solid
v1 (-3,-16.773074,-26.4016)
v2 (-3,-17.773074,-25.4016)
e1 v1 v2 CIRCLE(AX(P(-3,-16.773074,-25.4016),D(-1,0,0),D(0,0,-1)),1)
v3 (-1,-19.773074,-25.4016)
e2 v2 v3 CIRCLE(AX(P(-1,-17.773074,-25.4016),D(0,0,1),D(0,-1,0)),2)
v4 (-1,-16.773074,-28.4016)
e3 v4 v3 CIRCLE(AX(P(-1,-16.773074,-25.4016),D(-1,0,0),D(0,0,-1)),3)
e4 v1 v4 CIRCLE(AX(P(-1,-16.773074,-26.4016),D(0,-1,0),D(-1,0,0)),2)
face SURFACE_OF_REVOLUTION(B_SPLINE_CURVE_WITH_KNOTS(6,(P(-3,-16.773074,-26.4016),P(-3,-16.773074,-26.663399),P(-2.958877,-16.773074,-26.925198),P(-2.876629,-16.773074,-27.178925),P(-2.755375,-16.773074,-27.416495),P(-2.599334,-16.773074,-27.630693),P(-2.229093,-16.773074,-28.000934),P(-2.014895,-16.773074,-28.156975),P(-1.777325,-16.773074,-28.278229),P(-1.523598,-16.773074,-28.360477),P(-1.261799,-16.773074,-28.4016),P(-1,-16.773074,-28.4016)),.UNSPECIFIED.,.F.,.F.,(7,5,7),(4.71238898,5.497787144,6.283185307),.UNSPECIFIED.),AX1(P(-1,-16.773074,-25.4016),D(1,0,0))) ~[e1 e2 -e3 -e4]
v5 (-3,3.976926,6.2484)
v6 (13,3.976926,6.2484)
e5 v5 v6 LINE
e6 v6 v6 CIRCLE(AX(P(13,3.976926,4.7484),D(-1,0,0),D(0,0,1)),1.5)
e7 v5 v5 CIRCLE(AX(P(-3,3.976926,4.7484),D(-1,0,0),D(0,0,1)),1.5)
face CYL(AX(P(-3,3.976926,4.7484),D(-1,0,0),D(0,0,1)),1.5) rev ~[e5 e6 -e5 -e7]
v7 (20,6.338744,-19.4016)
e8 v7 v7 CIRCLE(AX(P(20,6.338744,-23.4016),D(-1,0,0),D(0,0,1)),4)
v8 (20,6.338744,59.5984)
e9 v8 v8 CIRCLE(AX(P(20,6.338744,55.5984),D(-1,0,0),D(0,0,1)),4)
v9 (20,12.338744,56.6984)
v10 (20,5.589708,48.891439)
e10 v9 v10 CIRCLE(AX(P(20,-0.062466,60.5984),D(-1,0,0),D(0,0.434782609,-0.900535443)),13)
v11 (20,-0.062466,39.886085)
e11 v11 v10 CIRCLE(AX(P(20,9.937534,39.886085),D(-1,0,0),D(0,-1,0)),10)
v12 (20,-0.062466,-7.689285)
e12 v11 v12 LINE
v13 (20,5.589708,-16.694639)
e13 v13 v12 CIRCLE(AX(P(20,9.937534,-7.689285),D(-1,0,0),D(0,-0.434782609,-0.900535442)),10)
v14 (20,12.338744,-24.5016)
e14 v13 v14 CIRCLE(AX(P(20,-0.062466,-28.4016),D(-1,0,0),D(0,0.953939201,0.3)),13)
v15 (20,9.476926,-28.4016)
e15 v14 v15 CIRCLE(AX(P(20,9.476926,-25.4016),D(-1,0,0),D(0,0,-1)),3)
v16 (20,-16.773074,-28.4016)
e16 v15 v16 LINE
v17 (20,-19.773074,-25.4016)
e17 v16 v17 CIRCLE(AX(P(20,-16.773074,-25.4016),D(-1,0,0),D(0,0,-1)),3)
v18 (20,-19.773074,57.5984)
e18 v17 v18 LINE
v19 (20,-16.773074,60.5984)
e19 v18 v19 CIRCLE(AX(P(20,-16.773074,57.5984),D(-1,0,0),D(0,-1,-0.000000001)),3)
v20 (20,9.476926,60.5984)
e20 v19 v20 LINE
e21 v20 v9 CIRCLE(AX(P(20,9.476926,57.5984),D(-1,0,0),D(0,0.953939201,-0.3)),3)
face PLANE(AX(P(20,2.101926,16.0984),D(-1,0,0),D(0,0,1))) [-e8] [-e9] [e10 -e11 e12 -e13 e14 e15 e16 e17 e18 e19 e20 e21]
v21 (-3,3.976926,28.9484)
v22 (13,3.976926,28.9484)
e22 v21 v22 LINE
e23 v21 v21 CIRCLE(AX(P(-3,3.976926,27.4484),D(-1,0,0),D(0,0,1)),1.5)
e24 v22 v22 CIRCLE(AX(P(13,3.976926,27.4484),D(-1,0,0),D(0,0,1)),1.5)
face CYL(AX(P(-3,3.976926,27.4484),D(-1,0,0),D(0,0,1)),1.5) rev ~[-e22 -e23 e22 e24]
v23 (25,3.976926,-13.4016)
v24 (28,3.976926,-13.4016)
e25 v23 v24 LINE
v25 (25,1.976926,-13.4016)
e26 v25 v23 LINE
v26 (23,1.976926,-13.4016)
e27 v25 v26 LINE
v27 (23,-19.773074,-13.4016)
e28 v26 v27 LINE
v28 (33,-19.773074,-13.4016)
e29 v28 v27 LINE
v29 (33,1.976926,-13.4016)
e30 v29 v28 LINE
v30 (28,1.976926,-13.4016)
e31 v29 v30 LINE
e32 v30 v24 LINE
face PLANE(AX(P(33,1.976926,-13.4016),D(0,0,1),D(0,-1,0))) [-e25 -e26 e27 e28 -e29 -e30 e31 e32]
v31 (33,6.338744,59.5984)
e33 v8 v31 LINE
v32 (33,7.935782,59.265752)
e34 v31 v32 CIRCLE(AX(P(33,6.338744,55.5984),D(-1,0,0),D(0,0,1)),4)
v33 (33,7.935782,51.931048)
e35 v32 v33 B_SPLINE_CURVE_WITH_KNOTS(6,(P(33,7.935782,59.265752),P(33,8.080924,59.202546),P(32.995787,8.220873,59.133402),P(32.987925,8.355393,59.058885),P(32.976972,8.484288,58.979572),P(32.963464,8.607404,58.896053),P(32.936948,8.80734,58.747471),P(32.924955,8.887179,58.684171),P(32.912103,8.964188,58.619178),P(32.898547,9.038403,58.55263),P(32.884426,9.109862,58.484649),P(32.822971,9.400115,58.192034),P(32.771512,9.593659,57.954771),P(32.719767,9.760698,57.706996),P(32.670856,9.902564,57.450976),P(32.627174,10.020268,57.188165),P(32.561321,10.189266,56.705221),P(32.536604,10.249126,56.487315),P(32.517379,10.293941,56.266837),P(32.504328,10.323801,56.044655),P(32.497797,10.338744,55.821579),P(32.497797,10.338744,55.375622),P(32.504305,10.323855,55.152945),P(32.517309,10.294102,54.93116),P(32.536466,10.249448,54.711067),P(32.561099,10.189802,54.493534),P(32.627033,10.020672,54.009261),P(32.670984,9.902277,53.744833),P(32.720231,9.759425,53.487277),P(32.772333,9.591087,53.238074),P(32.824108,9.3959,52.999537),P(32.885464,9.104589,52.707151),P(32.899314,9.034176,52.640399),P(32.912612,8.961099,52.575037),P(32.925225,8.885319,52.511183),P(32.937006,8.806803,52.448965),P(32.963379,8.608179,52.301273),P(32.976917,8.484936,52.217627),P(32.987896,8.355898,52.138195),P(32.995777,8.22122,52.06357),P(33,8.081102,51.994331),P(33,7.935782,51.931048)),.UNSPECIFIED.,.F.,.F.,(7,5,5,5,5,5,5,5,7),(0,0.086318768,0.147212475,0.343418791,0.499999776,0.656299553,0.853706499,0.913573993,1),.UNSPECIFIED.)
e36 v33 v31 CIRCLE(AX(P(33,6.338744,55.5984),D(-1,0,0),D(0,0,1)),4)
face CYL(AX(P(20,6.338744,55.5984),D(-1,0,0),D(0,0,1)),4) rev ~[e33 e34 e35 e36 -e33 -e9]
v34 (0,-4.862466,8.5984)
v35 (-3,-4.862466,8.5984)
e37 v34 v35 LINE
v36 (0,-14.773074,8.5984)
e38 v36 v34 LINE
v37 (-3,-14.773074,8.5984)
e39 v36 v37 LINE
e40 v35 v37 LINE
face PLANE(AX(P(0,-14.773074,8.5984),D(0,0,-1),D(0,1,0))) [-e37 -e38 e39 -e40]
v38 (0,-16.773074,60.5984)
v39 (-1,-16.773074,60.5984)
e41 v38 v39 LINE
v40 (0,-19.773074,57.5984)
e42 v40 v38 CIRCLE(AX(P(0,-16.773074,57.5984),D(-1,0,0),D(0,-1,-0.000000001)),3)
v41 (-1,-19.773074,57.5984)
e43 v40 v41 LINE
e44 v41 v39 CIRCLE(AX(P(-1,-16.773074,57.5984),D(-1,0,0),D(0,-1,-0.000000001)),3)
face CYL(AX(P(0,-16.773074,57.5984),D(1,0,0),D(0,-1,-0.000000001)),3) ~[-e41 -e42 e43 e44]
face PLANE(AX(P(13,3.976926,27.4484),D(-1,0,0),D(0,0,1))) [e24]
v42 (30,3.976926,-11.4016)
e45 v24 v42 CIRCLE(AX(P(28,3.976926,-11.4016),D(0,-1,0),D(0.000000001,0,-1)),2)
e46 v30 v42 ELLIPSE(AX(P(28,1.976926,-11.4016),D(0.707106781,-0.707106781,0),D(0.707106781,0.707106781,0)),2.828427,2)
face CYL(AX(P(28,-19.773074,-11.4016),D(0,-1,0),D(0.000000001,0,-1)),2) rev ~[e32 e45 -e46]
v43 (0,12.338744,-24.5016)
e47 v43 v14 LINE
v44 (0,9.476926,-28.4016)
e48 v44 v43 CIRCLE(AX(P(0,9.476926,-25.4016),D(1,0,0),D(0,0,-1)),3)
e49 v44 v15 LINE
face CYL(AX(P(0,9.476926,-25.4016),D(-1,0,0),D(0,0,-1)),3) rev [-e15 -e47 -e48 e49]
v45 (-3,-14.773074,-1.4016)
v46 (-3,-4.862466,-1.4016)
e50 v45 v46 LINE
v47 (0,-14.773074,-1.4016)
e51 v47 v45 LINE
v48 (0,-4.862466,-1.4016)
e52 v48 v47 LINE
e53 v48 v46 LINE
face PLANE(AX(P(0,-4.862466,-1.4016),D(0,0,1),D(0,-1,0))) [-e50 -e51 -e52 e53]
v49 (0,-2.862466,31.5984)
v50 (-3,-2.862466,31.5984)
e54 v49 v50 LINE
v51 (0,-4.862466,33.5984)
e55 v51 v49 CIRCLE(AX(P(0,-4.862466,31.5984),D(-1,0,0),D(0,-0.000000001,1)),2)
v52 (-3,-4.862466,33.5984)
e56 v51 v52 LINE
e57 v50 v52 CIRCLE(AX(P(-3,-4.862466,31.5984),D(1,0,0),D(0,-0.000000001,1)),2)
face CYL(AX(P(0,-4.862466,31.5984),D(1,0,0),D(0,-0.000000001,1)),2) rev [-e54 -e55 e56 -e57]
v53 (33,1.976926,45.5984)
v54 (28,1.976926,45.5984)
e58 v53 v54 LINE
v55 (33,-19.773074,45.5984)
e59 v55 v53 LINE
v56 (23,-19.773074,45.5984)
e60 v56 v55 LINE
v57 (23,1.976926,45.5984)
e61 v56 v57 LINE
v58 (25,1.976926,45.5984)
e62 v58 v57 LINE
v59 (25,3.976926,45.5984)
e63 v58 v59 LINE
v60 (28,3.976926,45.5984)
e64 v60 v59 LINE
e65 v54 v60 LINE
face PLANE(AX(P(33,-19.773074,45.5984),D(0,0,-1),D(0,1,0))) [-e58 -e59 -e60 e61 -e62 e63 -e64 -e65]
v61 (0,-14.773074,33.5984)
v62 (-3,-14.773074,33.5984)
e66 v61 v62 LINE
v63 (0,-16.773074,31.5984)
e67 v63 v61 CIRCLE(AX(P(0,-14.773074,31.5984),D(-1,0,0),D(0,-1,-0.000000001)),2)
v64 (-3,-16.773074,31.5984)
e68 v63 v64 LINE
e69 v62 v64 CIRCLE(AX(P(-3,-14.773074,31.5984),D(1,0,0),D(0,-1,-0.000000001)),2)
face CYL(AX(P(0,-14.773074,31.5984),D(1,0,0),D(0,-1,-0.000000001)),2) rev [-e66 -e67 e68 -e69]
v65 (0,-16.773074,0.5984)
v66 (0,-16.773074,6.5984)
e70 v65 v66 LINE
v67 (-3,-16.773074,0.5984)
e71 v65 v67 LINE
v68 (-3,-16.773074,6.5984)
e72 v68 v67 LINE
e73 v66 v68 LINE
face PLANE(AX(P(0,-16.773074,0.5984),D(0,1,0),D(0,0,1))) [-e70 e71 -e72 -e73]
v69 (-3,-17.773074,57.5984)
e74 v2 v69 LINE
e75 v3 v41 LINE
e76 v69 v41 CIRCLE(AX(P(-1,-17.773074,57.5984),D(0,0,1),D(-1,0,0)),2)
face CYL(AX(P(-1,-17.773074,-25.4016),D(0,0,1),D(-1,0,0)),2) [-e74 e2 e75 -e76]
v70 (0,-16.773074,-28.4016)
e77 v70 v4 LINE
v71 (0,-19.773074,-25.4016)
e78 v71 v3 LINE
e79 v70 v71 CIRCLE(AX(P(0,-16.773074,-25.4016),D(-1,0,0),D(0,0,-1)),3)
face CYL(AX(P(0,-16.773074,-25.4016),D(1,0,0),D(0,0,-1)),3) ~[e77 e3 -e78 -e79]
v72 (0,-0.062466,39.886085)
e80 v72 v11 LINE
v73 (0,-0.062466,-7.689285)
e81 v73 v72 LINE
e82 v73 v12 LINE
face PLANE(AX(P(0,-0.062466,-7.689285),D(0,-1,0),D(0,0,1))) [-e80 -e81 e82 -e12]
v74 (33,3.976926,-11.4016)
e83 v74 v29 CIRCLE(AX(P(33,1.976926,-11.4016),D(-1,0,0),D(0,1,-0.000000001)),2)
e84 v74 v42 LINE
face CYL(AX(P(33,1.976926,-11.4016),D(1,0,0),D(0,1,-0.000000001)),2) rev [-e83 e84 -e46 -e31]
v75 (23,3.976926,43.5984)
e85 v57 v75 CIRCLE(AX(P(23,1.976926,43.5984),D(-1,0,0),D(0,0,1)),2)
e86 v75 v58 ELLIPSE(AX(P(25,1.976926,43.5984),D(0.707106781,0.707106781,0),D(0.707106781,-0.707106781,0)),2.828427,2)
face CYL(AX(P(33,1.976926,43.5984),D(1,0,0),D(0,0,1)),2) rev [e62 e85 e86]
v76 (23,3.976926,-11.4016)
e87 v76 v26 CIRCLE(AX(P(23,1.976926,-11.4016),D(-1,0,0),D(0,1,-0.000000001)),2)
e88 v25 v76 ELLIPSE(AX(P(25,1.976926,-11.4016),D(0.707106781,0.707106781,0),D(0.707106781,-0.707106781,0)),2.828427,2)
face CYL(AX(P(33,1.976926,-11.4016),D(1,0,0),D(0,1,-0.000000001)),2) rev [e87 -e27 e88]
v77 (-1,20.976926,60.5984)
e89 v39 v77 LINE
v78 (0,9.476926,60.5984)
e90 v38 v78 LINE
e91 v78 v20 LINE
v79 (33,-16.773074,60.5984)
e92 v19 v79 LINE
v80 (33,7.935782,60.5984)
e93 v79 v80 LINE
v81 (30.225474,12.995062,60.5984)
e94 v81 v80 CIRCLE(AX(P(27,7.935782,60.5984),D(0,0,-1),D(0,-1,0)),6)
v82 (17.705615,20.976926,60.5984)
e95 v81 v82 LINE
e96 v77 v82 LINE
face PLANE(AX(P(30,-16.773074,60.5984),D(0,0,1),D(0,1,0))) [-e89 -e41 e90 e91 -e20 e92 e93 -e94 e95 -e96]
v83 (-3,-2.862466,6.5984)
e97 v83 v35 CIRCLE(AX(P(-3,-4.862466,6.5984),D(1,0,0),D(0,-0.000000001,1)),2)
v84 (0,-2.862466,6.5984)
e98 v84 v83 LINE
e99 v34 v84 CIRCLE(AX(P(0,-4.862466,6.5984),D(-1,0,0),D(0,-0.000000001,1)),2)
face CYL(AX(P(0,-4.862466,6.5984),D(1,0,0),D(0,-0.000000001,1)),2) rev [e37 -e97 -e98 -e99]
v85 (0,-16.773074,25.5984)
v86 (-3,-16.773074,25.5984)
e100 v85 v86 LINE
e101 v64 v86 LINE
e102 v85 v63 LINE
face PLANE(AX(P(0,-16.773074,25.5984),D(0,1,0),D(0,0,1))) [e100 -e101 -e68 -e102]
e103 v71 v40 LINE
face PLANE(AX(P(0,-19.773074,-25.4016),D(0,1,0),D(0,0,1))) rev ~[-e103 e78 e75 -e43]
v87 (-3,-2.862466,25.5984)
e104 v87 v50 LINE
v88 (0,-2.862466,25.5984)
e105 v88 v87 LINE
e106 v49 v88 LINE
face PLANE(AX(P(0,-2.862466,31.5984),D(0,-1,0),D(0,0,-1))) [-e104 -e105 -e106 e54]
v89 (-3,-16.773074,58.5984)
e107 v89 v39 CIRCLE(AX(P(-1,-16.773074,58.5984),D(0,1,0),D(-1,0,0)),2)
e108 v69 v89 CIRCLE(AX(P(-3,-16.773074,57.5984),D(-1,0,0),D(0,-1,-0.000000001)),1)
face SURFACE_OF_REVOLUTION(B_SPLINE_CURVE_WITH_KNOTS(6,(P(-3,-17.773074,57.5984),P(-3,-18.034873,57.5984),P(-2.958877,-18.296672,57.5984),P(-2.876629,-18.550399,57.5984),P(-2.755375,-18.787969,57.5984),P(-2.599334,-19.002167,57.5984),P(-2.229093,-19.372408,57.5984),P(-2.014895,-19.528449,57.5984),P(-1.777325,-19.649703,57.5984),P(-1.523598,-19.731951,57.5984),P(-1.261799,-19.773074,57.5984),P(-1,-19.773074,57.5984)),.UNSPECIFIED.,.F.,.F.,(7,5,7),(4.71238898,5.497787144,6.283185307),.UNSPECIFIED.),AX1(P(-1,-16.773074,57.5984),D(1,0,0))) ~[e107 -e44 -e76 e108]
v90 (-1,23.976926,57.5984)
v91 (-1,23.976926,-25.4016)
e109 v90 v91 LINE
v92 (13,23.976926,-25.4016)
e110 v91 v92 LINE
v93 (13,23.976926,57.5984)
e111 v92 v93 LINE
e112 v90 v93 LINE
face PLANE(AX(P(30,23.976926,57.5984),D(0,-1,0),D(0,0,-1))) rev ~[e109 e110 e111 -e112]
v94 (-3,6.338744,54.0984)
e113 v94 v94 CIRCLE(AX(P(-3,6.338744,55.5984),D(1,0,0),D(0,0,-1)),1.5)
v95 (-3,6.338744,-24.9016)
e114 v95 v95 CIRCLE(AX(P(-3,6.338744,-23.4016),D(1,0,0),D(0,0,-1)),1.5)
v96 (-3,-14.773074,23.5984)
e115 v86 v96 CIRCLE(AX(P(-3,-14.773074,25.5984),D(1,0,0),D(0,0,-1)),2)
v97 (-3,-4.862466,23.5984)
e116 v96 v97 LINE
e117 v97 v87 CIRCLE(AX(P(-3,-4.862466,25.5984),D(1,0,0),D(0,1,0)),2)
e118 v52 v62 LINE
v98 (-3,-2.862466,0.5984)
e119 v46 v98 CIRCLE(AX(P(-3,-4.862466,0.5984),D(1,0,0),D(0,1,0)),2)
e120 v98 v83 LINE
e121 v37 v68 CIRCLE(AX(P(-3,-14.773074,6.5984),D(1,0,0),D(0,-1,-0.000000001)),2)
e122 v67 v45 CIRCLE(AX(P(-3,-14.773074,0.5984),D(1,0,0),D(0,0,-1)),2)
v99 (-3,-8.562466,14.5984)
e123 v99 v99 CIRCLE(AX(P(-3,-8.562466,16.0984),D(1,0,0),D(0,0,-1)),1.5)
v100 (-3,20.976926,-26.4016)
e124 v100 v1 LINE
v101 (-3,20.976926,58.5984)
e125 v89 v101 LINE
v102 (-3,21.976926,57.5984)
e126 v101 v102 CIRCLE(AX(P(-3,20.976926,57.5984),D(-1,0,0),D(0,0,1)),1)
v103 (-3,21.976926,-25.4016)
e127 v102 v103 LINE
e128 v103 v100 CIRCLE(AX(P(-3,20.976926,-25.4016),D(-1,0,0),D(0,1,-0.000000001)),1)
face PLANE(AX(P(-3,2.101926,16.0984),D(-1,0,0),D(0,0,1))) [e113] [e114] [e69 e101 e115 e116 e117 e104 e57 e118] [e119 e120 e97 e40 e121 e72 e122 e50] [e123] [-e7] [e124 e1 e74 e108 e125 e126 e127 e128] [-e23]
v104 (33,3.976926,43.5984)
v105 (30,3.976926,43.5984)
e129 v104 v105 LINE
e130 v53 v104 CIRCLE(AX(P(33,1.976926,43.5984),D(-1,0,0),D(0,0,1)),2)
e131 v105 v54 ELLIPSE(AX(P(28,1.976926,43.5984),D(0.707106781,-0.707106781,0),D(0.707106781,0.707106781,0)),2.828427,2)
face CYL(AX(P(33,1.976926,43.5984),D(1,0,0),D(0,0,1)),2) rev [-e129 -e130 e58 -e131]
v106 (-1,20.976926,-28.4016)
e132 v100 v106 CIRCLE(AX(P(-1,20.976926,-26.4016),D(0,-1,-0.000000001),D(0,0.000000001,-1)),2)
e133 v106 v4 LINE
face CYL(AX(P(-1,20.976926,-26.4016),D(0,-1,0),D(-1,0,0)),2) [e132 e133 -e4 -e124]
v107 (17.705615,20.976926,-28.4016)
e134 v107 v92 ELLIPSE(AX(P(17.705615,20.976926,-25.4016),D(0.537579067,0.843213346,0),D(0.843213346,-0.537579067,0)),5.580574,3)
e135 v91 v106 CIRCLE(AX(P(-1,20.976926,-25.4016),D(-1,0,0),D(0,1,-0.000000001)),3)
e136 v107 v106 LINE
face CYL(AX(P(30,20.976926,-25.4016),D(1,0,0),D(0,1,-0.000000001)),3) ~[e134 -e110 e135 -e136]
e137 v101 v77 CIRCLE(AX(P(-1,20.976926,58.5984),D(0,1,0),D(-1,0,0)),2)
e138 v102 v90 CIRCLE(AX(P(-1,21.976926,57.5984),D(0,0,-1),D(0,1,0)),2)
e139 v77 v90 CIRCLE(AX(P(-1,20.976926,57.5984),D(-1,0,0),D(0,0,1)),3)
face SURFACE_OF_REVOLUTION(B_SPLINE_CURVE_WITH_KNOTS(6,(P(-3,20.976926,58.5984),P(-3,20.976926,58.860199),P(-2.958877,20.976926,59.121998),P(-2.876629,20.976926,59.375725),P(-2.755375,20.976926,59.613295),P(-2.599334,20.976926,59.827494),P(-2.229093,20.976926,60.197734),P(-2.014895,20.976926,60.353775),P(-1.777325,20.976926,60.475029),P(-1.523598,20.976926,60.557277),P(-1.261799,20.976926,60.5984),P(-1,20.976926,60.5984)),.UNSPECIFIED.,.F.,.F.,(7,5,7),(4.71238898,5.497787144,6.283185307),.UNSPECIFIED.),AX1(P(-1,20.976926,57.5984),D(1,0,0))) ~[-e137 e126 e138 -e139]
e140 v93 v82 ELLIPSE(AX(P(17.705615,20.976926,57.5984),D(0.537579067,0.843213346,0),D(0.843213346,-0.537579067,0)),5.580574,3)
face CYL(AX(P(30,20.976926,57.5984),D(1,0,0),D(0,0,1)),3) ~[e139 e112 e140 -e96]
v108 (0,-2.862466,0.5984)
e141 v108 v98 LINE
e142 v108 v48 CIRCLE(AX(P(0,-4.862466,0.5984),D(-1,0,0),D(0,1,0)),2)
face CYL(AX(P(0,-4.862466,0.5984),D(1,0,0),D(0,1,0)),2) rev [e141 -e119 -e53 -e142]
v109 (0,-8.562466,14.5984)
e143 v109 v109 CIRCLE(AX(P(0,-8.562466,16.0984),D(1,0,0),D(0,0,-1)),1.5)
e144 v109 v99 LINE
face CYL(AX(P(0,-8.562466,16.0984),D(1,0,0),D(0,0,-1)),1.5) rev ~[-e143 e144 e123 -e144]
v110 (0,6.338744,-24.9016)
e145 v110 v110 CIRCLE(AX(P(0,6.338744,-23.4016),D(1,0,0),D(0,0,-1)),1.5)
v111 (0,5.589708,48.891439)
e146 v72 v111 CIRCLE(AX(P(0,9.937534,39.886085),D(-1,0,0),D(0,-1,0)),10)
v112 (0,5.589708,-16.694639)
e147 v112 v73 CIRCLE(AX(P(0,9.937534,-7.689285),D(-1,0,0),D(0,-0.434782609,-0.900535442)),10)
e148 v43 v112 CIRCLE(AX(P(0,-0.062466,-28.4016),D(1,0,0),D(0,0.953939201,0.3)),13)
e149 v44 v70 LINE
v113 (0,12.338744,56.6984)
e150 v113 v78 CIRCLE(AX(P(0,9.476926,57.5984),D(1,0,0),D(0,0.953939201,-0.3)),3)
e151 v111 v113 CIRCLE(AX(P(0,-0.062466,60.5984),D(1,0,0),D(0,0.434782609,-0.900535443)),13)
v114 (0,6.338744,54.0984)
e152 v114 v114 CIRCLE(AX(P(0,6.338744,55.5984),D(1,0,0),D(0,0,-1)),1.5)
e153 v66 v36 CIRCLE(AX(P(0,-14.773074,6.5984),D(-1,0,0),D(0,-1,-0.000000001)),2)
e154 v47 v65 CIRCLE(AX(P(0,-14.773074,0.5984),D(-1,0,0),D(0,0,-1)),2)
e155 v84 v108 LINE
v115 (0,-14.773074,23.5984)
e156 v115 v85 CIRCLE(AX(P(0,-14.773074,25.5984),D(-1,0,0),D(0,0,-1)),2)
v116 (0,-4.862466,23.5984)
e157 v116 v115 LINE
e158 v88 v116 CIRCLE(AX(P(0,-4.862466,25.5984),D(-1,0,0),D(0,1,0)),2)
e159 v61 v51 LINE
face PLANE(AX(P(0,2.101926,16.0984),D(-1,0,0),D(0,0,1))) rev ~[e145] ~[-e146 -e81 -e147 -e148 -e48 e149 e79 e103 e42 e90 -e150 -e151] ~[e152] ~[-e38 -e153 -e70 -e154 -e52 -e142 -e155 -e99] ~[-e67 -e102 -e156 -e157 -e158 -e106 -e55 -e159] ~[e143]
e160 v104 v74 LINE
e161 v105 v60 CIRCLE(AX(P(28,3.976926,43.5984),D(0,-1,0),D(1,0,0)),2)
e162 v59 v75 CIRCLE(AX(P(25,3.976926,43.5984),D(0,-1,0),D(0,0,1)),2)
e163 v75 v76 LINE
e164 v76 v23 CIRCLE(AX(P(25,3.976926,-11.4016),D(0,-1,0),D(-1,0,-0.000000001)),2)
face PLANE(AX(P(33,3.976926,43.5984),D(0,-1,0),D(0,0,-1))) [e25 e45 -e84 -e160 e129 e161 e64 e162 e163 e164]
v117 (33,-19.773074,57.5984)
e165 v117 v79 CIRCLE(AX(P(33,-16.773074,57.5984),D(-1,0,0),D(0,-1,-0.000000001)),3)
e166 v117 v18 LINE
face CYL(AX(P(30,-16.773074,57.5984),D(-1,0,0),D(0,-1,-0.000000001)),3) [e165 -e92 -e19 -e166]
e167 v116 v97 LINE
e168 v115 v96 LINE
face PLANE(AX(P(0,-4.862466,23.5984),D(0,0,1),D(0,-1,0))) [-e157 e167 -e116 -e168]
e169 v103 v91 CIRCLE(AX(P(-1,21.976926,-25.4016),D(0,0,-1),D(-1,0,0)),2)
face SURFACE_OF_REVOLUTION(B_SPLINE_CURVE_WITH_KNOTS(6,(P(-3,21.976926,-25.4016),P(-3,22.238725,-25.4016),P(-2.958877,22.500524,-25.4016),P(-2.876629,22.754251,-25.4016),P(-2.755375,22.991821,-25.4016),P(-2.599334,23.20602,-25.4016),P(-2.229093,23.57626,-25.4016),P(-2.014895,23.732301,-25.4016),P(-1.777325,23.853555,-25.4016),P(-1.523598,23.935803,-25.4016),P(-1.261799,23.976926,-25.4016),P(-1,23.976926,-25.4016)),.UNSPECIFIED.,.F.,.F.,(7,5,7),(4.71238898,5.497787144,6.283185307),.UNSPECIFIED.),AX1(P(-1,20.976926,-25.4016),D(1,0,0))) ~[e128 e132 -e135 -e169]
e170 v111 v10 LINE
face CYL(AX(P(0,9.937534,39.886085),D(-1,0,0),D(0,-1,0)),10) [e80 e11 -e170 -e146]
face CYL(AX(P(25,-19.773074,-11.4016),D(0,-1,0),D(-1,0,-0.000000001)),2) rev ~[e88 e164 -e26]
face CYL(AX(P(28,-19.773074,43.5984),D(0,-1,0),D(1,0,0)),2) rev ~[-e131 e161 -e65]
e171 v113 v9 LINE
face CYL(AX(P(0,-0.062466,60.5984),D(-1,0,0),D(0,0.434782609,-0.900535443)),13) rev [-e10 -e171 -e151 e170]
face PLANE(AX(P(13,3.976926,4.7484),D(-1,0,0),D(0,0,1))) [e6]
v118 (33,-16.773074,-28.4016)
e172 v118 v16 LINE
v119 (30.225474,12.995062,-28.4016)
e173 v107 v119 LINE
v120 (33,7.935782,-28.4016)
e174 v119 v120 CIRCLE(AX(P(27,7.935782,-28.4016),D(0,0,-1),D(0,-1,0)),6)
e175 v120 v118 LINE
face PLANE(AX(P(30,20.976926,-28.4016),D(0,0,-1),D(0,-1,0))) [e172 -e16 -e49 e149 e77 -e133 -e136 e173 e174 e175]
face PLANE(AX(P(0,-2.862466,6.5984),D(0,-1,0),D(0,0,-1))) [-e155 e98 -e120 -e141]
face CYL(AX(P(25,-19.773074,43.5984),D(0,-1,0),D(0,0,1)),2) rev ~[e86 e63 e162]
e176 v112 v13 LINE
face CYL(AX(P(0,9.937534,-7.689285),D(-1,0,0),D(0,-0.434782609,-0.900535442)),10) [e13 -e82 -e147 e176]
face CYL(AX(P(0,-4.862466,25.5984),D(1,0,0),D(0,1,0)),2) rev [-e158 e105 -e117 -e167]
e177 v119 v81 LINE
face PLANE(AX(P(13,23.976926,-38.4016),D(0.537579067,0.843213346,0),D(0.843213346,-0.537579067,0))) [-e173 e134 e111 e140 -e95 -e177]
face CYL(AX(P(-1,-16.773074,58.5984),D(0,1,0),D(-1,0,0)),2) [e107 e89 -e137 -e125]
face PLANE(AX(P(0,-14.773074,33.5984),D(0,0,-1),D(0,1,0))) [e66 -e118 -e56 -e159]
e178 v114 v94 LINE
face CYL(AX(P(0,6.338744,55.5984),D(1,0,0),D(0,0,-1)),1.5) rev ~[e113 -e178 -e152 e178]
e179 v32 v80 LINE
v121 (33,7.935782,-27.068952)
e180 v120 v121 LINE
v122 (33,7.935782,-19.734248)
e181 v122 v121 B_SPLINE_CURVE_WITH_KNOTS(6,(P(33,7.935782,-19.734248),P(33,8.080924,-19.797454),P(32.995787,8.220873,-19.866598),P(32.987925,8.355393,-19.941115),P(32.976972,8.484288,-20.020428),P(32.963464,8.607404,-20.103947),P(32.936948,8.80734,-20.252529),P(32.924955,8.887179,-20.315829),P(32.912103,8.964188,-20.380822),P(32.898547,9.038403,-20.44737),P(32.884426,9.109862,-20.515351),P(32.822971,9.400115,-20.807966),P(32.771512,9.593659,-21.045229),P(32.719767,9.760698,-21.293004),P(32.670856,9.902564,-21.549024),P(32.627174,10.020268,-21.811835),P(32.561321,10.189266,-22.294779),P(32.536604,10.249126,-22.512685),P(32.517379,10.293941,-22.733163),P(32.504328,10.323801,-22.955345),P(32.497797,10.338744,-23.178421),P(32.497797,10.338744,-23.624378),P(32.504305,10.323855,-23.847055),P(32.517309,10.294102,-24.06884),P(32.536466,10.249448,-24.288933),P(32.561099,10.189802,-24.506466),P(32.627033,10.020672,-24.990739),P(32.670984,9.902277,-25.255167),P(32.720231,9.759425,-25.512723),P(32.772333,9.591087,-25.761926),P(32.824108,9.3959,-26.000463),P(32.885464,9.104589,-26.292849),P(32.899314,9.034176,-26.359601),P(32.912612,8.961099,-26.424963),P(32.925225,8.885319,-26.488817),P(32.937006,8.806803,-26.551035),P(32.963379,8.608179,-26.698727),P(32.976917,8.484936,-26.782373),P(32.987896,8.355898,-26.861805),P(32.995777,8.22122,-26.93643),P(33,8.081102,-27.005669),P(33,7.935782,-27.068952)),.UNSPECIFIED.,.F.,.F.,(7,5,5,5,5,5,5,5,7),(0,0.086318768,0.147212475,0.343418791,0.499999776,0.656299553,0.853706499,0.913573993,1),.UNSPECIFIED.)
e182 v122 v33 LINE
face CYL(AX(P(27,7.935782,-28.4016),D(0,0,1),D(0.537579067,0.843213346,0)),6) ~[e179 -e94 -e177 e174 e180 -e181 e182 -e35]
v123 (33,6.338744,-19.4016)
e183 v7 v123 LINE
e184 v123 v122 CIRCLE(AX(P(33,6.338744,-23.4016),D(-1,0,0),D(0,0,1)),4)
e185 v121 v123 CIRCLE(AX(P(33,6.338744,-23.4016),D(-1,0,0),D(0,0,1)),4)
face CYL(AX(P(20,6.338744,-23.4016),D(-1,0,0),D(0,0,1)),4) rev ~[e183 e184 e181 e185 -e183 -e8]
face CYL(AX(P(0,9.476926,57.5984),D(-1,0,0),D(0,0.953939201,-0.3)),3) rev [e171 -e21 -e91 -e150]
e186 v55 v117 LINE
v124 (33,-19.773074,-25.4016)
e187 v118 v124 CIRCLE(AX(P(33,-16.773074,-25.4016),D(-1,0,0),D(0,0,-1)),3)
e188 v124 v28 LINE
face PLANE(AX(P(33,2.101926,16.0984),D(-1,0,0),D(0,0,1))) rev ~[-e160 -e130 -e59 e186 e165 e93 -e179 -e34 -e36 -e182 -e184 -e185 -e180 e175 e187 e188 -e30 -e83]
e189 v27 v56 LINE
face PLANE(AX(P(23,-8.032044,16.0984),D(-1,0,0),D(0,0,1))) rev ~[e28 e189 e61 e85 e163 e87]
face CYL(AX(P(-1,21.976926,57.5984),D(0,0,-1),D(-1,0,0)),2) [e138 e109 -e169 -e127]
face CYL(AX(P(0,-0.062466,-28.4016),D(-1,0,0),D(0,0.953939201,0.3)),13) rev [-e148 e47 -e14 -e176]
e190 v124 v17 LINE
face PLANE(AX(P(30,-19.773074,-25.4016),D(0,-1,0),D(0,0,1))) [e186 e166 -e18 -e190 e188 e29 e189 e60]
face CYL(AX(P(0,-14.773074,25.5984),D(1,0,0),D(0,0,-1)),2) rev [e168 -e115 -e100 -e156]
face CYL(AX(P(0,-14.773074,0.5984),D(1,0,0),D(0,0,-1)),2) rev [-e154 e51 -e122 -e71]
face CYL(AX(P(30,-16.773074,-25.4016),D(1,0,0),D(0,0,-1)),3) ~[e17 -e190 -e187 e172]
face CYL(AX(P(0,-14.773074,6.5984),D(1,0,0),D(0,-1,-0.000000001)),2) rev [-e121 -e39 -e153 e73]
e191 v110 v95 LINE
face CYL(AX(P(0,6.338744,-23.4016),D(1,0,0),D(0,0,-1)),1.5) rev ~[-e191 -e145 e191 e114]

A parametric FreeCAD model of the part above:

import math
import FreeCAD as App
import Part
import Sketcher
Q = App.Units.Quantity


def edges_at(feature, points):
    """Names of the edges that pass closest to the given points."""
    edges = feature.Shape.Edges
    near = lambda p: min(range(len(edges)), key=lambda i: edges[i].distToShape(Part.Vertex(*p))[0])
    return sorted({f"Edge{near(p) + 1}" for p in points})

doc = App.newDocument("Part")
body = doc.addObject("PartDesign::Body", "Body")

sketch1 = doc.addObject("Sketcher::SketchObject", "Sketch")
body.addObject(sketch1)
sketch1.AttachmentSupport = (doc.YZ_Plane, [""])
sketch1.MapMode = "FlatFace"
sketch1.addGeometry([
    Part.ArcOfCircle(Part.Circle(App.Vector(9.9, 39.9, 0), App.Vector(0, 0, 1), 10), math.radians(116), math.radians(180)),
    Part.LineSegment(App.Vector(-0.1, 39.9, 0), App.Vector(-0.1, -7.7, 0)),
    Part.ArcOfCircle(Part.Circle(App.Vector(9.9, -7.7, 0), App.Vector(0, 0, 1), 10), math.radians(-180), math.radians(-116)),
    Part.ArcOfCircle(Part.Circle(App.Vector(-0.1, -28.4, 0), App.Vector(0, 0, 1), 13), math.radians(17), math.radians(64)),
    Part.ArcOfCircle(Part.Circle(App.Vector(9.5, -25.4, 0), App.Vector(0, 0, 1), 3), math.radians(-90), math.radians(17)),
    Part.LineSegment(App.Vector(9.5, -28.4, 0), App.Vector(21, -28.4, 0)),
    Part.ArcOfCircle(Part.Circle(App.Vector(21, -25.4, 0), App.Vector(0, 0, 1), 3), math.radians(-90), math.radians(0)),
    Part.LineSegment(App.Vector(24, -25.4, 0), App.Vector(24, 57.6, 0)),
    Part.ArcOfCircle(Part.Circle(App.Vector(21, 57.6, 0), App.Vector(0, 0, 1), 3), math.radians(0), math.radians(90)),
    Part.LineSegment(App.Vector(21, 60.6, 0), App.Vector(9.5, 60.6, 0)),
    Part.ArcOfCircle(Part.Circle(App.Vector(9.5, 57.6, 0), App.Vector(0, 0, 1), 3), math.radians(-17), math.radians(90)),
    Part.ArcOfCircle(Part.Circle(App.Vector(-0.1, 60.6, 0), App.Vector(0, 0, 1), 13), math.radians(-64), math.radians(-17)),
], False)
sketch1.addConstraint([
    Sketcher.Constraint("Tangent", 0, 2, 1, 1),
    Sketcher.Constraint("Tangent", 1, 2, 2, 1),
    Sketcher.Constraint("Tangent", 2, 2, 3, 2),
    Sketcher.Constraint("Tangent", 3, 1, 4, 2),
    Sketcher.Constraint("Tangent", 4, 1, 5, 1),
    Sketcher.Constraint("Tangent", 5, 2, 6, 1),
    Sketcher.Constraint("Tangent", 6, 2, 7, 1),
    Sketcher.Constraint("Tangent", 7, 2, 8, 1),
    Sketcher.Constraint("Tangent", 8, 2, 9, 1),
    Sketcher.Constraint("Tangent", 9, 2, 10, 2),
    Sketcher.Constraint("Tangent", 10, 1, 11, 2),
    Sketcher.Constraint("Tangent", 11, 1, 0, 1),
    Sketcher.Constraint("Vertical", 1),
    Sketcher.Constraint("Horizontal", 5),
    Sketcher.Constraint("Vertical", 7),
    Sketcher.Constraint("Horizontal", 9),
    Sketcher.Constraint("Equal", 0, 2),
    Sketcher.Constraint("Equal", 4, 6),
    Sketcher.Constraint("Equal", 6, 8),
    Sketcher.Constraint("Equal", 8, 10),
    Sketcher.Constraint("Equal", 3, 11),
    Sketcher.Constraint("Horizontal", 3, 3, 4, 1),
    Sketcher.Constraint("Horizontal", 11, 3, 8, 2),
    Sketcher.Constraint("Vertical", 4, 3, 10, 3),
    Sketcher.Constraint("Vertical", 11, 3, 0, 2),
    Sketcher.Constraint("Radius", 0, Q("10 mm")),
    Sketcher.Constraint("Radius", 3, Q("13 mm")),
    Sketcher.Constraint("Radius", 4, Q("3 mm")),
    Sketcher.Constraint("DistanceY", 7, 1, 7, 2, Q("83 mm")),
    Sketcher.Constraint("DistanceX", 5, 1, 5, 2, Q("11.5 mm")),
    Sketcher.Constraint("DistanceY", 3, 3, -1, 1, Q("28.4016 mm")),
    Sketcher.Constraint("DistanceX", -1, 1, 0, 3, Q("9.937534 mm")),
])
pad1 = doc.addObject("PartDesign::Pad", "Pad")
body.addObject(pad1)
pad1.Profile = sketch1
pad1.Length = 30

sketch2 = doc.addObject("Sketcher::SketchObject", "Sketch001")
body.addObject(sketch2)
sketch2.AttachmentSupport = (doc.YZ_Plane, [""])
sketch2.MapMode = "FlatFace"
sketch2.addGeometry([
    Part.ArcOfCircle(Part.Circle(App.Vector(21, 57.6, 0), App.Vector(0, 0, 1), 3), math.radians(0), math.radians(90)),
    Part.LineSegment(App.Vector(24, 57.6, 0), App.Vector(24, -25.4, 0)),
    Part.ArcOfCircle(Part.Circle(App.Vector(21, -25.4, 0), App.Vector(0, 0, 1), 3), math.radians(-90), math.radians(0)),
    Part.LineSegment(App.Vector(21, -28.4, 0), App.Vector(-16.8, -28.4, 0)),
    Part.ArcOfCircle(Part.Circle(App.Vector(-16.8, -25.4, 0), App.Vector(0, 0, 1), 3), math.radians(180), math.radians(270)),
    Part.LineSegment(App.Vector(-19.8, -25.4, 0), App.Vector(-19.8, 57.6, 0)),
    Part.ArcOfCircle(Part.Circle(App.Vector(-16.8, 57.6, 0), App.Vector(0, 0, 1), 3), math.radians(90), math.radians(180)),
    Part.LineSegment(App.Vector(-16.8, 60.6, 0), App.Vector(21, 60.6, 0)),
], False)
sketch2.addConstraint([
    Sketcher.Constraint("Tangent", 0, 1, 1, 1),
    Sketcher.Constraint("Tangent", 1, 2, 2, 2),
    Sketcher.Constraint("Tangent", 2, 1, 3, 1),
    Sketcher.Constraint("Tangent", 3, 2, 4, 2),
    Sketcher.Constraint("Tangent", 4, 1, 5, 1),
    Sketcher.Constraint("Tangent", 5, 2, 6, 2),
    Sketcher.Constraint("Tangent", 6, 1, 7, 1),
    Sketcher.Constraint("Tangent", 7, 2, 0, 2),
    Sketcher.Constraint("Vertical", 1),
    Sketcher.Constraint("Horizontal", 3),
    Sketcher.Constraint("Vertical", 5),
    Sketcher.Constraint("Horizontal", 7),
    Sketcher.Constraint("Equal", 0, 2),
    Sketcher.Constraint("Equal", 2, 4),
    Sketcher.Constraint("Equal", 4, 6),
    Sketcher.Constraint("Radius", 0, Q("3 mm")),
    Sketcher.Constraint("DistanceY", 1, 2, 1, 1, Q("83 mm")),
    Sketcher.Constraint("DistanceX", 3, 2, 3, 1, Q("37.75 mm")),
    Sketcher.Constraint("DistanceY", -1, 1, 0, 3, Q("57.5984 mm")),
    Sketcher.Constraint("DistanceX", -1, 1, 0, 3, Q("20.976926 mm")),
])
pad2 = doc.addObject("PartDesign::Pad", "Pad001")
body.addObject(pad2)
pad2.Profile = sketch2
pad2.Length = 3
pad2.Reversed = True

sketch3 = doc.addObject("Sketcher::SketchObject", "Sketch002")
body.addObject(sketch3)
sketch3.AttachmentSupport = (doc.YZ_Plane, [""])
sketch3.MapMode = "FlatFace"
sketch3.AttachmentOffset = App.Placement(App.Vector(0, 0, 30), App.Rotation())
sketch3.addGeometry([
    Part.ArcOfCircle(Part.Circle(App.Vector(21, -25.4, 0), App.Vector(0, 0, 1), 3), math.radians(-90), math.radians(0)),
    Part.LineSegment(App.Vector(24, -25.4, 0), App.Vector(24, 57.6, 0)),
    Part.ArcOfCircle(Part.Circle(App.Vector(21, 57.6, 0), App.Vector(0, 0, 1), 3), math.radians(0), math.radians(90)),
    Part.LineSegment(App.Vector(21, 60.6, 0), App.Vector(-16.8, 60.6, 0)),
    Part.ArcOfCircle(Part.Circle(App.Vector(-16.8, 57.6, 0), App.Vector(0, 0, 1), 3), math.radians(90), math.radians(180)),
    Part.LineSegment(App.Vector(-19.8, 57.6, 0), App.Vector(-19.8, -25.4, 0)),
    Part.ArcOfCircle(Part.Circle(App.Vector(-16.8, -25.4, 0), App.Vector(0, 0, 1), 3), math.radians(180), math.radians(270)),
    Part.LineSegment(App.Vector(-16.8, -28.4, 0), App.Vector(21, -28.4, 0)),
], False)
sketch3.addConstraint([
    Sketcher.Constraint("Tangent", 0, 2, 1, 1),
    Sketcher.Constraint("Tangent", 1, 2, 2, 1),
    Sketcher.Constraint("Tangent", 2, 2, 3, 1),
    Sketcher.Constraint("Tangent", 3, 2, 4, 1),
    Sketcher.Constraint("Tangent", 4, 2, 5, 1),
    Sketcher.Constraint("Tangent", 5, 2, 6, 1),
    Sketcher.Constraint("Tangent", 6, 2, 7, 1),
    Sketcher.Constraint("Tangent", 7, 2, 0, 1),
    Sketcher.Constraint("Vertical", 1),
    Sketcher.Constraint("Horizontal", 3),
    Sketcher.Constraint("Vertical", 5),
    Sketcher.Constraint("Horizontal", 7),
    Sketcher.Constraint("Equal", 0, 2),
    Sketcher.Constraint("Equal", 2, 4),
    Sketcher.Constraint("Equal", 4, 6),
    Sketcher.Constraint("Radius", 0, Q("3 mm")),
    Sketcher.Constraint("DistanceY", 1, 1, 1, 2, Q("83 mm")),
    Sketcher.Constraint("DistanceX", 3, 2, 3, 1, Q("37.75 mm")),
    Sketcher.Constraint("DistanceY", 0, 3, -1, 1, Q("25.4016 mm")),
    Sketcher.Constraint("DistanceX", -1, 1, 0, 3, Q("20.976926 mm")),
])
pad3 = doc.addObject("PartDesign::Pad", "Pad002")
body.addObject(pad3)
pad3.Profile = sketch3
pad3.Type = "TwoLengths"
pad3.Length = 3
pad3.Length2 = 10

sketch4 = doc.addObject("Sketcher::SketchObject", "Sketch003")
body.addObject(sketch4)
sketch4.AttachmentSupport = (doc.YZ_Plane, [""])
sketch4.MapMode = "FlatFace"
sketch4.AttachmentOffset = App.Placement(App.Vector(0, 0, 33), App.Rotation())
sketch4.addGeometry([
    Part.LineSegment(App.Vector(4, -11.4, 0), App.Vector(4, 43.6, 0)),
    Part.ArcOfCircle(Part.Circle(App.Vector(2, 43.6, 0), App.Vector(0, 0, 1), 2), math.radians(0), math.radians(90)),
    Part.LineSegment(App.Vector(2, 45.6, 0), App.Vector(-19.8, 45.6, 0)),
    Part.LineSegment(App.Vector(-19.8, 45.6, 0), App.Vector(-19.8, -13.4, 0)),
    Part.LineSegment(App.Vector(-19.8, -13.4, 0), App.Vector(2, -13.4, 0)),
    Part.ArcOfCircle(Part.Circle(App.Vector(2, -11.4, 0), App.Vector(0, 0, 1), 2), math.radians(-90), math.radians(0)),
], False)
sketch4.addConstraint([
    Sketcher.Constraint("Tangent", 0, 2, 1, 1),
    Sketcher.Constraint("Tangent", 1, 2, 2, 1),
    Sketcher.Constraint("Coincident", 2, 2, 3, 1),
    Sketcher.Constraint("Coincident", 3, 2, 4, 1),
    Sketcher.Constraint("Tangent", 4, 2, 5, 1),
    Sketcher.Constraint("Tangent", 5, 2, 0, 1),
    Sketcher.Constraint("Vertical", 0),
    Sketcher.Constraint("Horizontal", 2),
    Sketcher.Constraint("Vertical", 3),
    Sketcher.Constraint("Horizontal", 4),
    Sketcher.Constraint("Equal", 1, 5),
    Sketcher.Constraint("Radius", 1, Q("2 mm")),
    Sketcher.Constraint("DistanceY", 0, 1, 0, 2, Q("55 mm")),
    Sketcher.Constraint("DistanceX", 2, 2, 2, 1, Q("21.75 mm")),
    Sketcher.Constraint("DistanceY", -1, 1, 1, 3, Q("43.5984 mm")),
    Sketcher.Constraint("DistanceX", -1, 1, 1, 3, Q("1.976926 mm")),
])
pocket1 = doc.addObject("PartDesign::Pocket", "Pocket")
body.addObject(pocket1)
pocket1.Profile = sketch4
pocket1.Length = 10

sketch5 = doc.addObject("Sketcher::SketchObject", "Sketch004")
body.addObject(sketch5)
sketch5.AttachmentSupport = (doc.XZ_Plane, [""])
sketch5.MapMode = "FlatFace"
sketch5.AttachmentOffset = App.Placement(App.Vector(0, 0, 19.773074), App.Rotation())
sketch5.addGeometry([
    Part.LineSegment(App.Vector(25, -13.4, 0), App.Vector(28, -13.4, 0)),
    Part.ArcOfCircle(Part.Circle(App.Vector(28, -11.4, 0), App.Vector(0, 0, 1), 2), math.radians(-90), math.radians(0)),
    Part.LineSegment(App.Vector(30, -11.4, 0), App.Vector(30, 43.6, 0)),
    Part.ArcOfCircle(Part.Circle(App.Vector(28, 43.6, 0), App.Vector(0, 0, 1), 2), math.radians(0), math.radians(90)),
    Part.LineSegment(App.Vector(28, 45.6, 0), App.Vector(25, 45.6, 0)),
    Part.ArcOfCircle(Part.Circle(App.Vector(25, 43.6, 0), App.Vector(0, 0, 1), 2), math.radians(90), math.radians(180)),
    Part.LineSegment(App.Vector(23, 43.6, 0), App.Vector(23, -11.4, 0)),
    Part.ArcOfCircle(Part.Circle(App.Vector(25, -11.4, 0), App.Vector(0, 0, 1), 2), math.radians(-180), math.radians(-90)),
], False)
sketch5.addConstraint([
    Sketcher.Constraint("Tangent", 0, 2, 1, 1),
    Sketcher.Constraint("Tangent", 1, 2, 2, 1),
    Sketcher.Constraint("Tangent", 2, 2, 3, 1),
    Sketcher.Constraint("Tangent", 3, 2, 4, 1),
    Sketcher.Constraint("Tangent", 4, 2, 5, 1),
    Sketcher.Constraint("Tangent", 5, 2, 6, 1),
    Sketcher.Constraint("Tangent", 6, 2, 7, 1),
    Sketcher.Constraint("Tangent", 7, 2, 0, 1),
    Sketcher.Constraint("Horizontal", 0),
    Sketcher.Constraint("Vertical", 2),
    Sketcher.Constraint("Horizontal", 4),
    Sketcher.Constraint("Vertical", 6),
    Sketcher.Constraint("Equal", 1, 3),
    Sketcher.Constraint("Equal", 3, 5),
    Sketcher.Constraint("Equal", 5, 7),
    Sketcher.Constraint("Radius", 1, Q("2 mm")),
    Sketcher.Constraint("DistanceX", 0, 1, 0, 2, Q("3 mm")),
    Sketcher.Constraint("DistanceY", 2, 1, 2, 2, Q("55 mm")),
    Sketcher.Constraint("DistanceX", -1, 1, 1, 3, Q("28 mm")),
    Sketcher.Constraint("DistanceY", 1, 3, -1, 1, Q("11.4016 mm")),
])
pocket2 = doc.addObject("PartDesign::Pocket", "Pocket001")
body.addObject(pocket2)
pocket2.Profile = sketch5
pocket2.Length = 23.75

sketch6 = doc.addObject("Sketcher::SketchObject", "Sketch005")
body.addObject(sketch6)
sketch6.AttachmentSupport = (doc.YZ_Plane, [""])
sketch6.MapMode = "FlatFace"
sketch6.addGeometry([
    Part.Circle(App.Vector(6.3, 55.6, 0), App.Vector(0, 0, 1), 1.5),
    Part.Circle(App.Vector(6.3, -23.4, 0), App.Vector(0, 0, 1), 1.5),
    Part.Circle(App.Vector(-8.6, 16.1, 0), App.Vector(0, 0, 1), 1.5),
], False)
sketch6.addConstraint([
    Sketcher.Constraint("Equal", 0, 1),
    Sketcher.Constraint("Equal", 1, 2),
    Sketcher.Constraint("Vertical", 0, 3, 1, 3),
    Sketcher.Constraint("Diameter", 0, Q("3 mm")),
    Sketcher.Constraint("DistanceY", 1, 3, 0, 3, Q("79 mm")),
    Sketcher.Constraint("DistanceY", 2, 3, 0, 3, Q("39.5 mm")),
    Sketcher.Constraint("DistanceY", -1, 1, 0, 3, Q("55.5984 mm")),
    Sketcher.Constraint("DistanceX", 2, 3, 0, 3, Q("14.90121 mm")),
    Sketcher.Constraint("DistanceX", -1, 1, 0, 3, Q("6.338744 mm")),
])
pocket3 = doc.addObject("PartDesign::Pocket", "Pocket002")
body.addObject(pocket3)
pocket3.Profile = sketch6
pocket3.Length = 10

sketch7 = doc.addObject("Sketcher::SketchObject", "Sketch006")
body.addObject(sketch7)
sketch7.AttachmentSupport = (doc.YZ_Plane, [""])
sketch7.MapMode = "FlatFace"
sketch7.addGeometry([
    Part.LineSegment(App.Vector(-2.9, 25.6, 0), App.Vector(-2.9, 31.6, 0)),
    Part.ArcOfCircle(Part.Circle(App.Vector(-4.9, 31.6, 0), App.Vector(0, 0, 1), 2), math.radians(0), math.radians(90)),
    Part.LineSegment(App.Vector(-4.9, 33.6, 0), App.Vector(-14.8, 33.6, 0)),
    Part.ArcOfCircle(Part.Circle(App.Vector(-14.8, 31.6, 0), App.Vector(0, 0, 1), 2), math.radians(90), math.radians(180)),
    Part.LineSegment(App.Vector(-16.8, 31.6, 0), App.Vector(-16.8, 25.6, 0)),
    Part.ArcOfCircle(Part.Circle(App.Vector(-14.8, 25.6, 0), App.Vector(0, 0, 1), 2), math.radians(180), math.radians(270)),
    Part.LineSegment(App.Vector(-14.8, 23.6, 0), App.Vector(-4.9, 23.6, 0)),
    Part.ArcOfCircle(Part.Circle(App.Vector(-4.9, 25.6, 0), App.Vector(0, 0, 1), 2), math.radians(-90), math.radians(0)),
    Part.LineSegment(App.Vector(-2.9, 0.6, 0), App.Vector(-2.9, 6.6, 0)),
    Part.ArcOfCircle(Part.Circle(App.Vector(-4.9, 6.6, 0), App.Vector(0, 0, 1), 2), math.radians(0), math.radians(90)),
    Part.LineSegment(App.Vector(-4.9, 8.6, 0), App.Vector(-14.8, 8.6, 0)),
    Part.ArcOfCircle(Part.Circle(App.Vector(-14.8, 6.6, 0), App.Vector(0, 0, 1), 2), math.radians(90), math.radians(180)),
    Part.LineSegment(App.Vector(-16.8, 6.6, 0), App.Vector(-16.8, 0.6, 0)),
    Part.ArcOfCircle(Part.Circle(App.Vector(-14.8, 0.6, 0), App.Vector(0, 0, 1), 2), math.radians(180), math.radians(270)),
    Part.LineSegment(App.Vector(-14.8, -1.4, 0), App.Vector(-4.9, -1.4, 0)),
    Part.ArcOfCircle(Part.Circle(App.Vector(-4.9, 0.6, 0), App.Vector(0, 0, 1), 2), math.radians(-90), math.radians(0)),
], False)
sketch7.addConstraint([
    Sketcher.Constraint("Tangent", 0, 2, 1, 1),
    Sketcher.Constraint("Tangent", 1, 2, 2, 1),
    Sketcher.Constraint("Tangent", 2, 2, 3, 1),
    Sketcher.Constraint("Tangent", 3, 2, 4, 1),
    Sketcher.Constraint("Tangent", 4, 2, 5, 1),
    Sketcher.Constraint("Tangent", 5, 2, 6, 1),
    Sketcher.Constraint("Tangent", 6, 2, 7, 1),
    Sketcher.Constraint("Tangent", 7, 2, 0, 1),
    Sketcher.Constraint("Tangent", 8, 2, 9, 1),
    Sketcher.Constraint("Tangent", 9, 2, 10, 1),
    Sketcher.Constraint("Tangent", 10, 2, 11, 1),
    Sketcher.Constraint("Tangent", 11, 2, 12, 1),
    Sketcher.Constraint("Tangent", 12, 2, 13, 1),
    Sketcher.Constraint("Tangent", 13, 2, 14, 1),
    Sketcher.Constraint("Tangent", 14, 2, 15, 1),
    Sketcher.Constraint("Tangent", 15, 2, 8, 1),
    Sketcher.Constraint("Vertical", 0),
    Sketcher.Constraint("Horizontal", 2),
    Sketcher.Constraint("Vertical", 4),
    Sketcher.Constraint("Horizontal", 6),
    Sketcher.Constraint("Vertical", 8),
    Sketcher.Constraint("Horizontal", 10),
    Sketcher.Constraint("Vertical", 12),
    Sketcher.Constraint("Horizontal", 14),
    Sketcher.Constraint("Equal", 1, 3),
    Sketcher.Constraint("Equal", 3, 5),
    Sketcher.Constraint("Equal", 5, 7),
    Sketcher.Constraint("Equal", 7, 9),
    Sketcher.Constraint("Equal", 9, 11),
    Sketcher.Constraint("Equal", 11, 13),
    Sketcher.Constraint("Equal", 13, 15),
    Sketcher.Constraint("Vertical", 7, 3, 9, 3),
    Sketcher.Constraint("Vertical", 5, 3, 11, 3),
    Sketcher.Constraint("Equal", 4, 8),
    Sketcher.Constraint("Radius", 1, Q("2 mm")),
    Sketcher.Constraint("DistanceY", 0, 1, 0, 2, Q("6 mm")),
    Sketcher.Constraint("DistanceY", 9, 3, 7, 3, Q("19 mm")),
    Sketcher.Constraint("DistanceY", -1, 1, 1, 3, Q("31.5984 mm")),
    Sketcher.Constraint("DistanceX", 2, 2, 2, 1, Q("9.910608 mm")),
    Sketcher.Constraint("DistanceX", 1, 3, -1, 1, Q("4.862466 mm")),
])
pocket4 = doc.addObject("PartDesign::Pocket", "Pocket003")
body.addObject(pocket4)
pocket4.Profile = sketch7
pocket4.Length = 10
doc.recompute()

fillet = doc.addObject("PartDesign::Fillet", "Fillet")
body.addObject(fillet)
fillet.Base = (pocket4, edges_at(pocket4, [
    (-3, 2.102, 60.598),
    (-3, 23.098, 59.72),
    (-3, 23.977, 16.098),
    (-3, 23.098, -27.523),
    (-3, 2.102, -28.402),
    (-3, -18.894, -27.523),
    (-3, -19.773, 16.098),
    (-3, -18.894, 59.72),
]))
fillet.Radius = 2

sketch8 = doc.addObject("Sketcher::SketchObject", "Sketch007")
body.addObject(sketch8)
sketch8.AttachmentSupport = (doc.YZ_Plane, [""])
sketch8.MapMode = "FlatFace"
sketch8.AttachmentOffset = App.Placement(App.Vector(0, 0, -3), App.Rotation())
sketch8.addGeometry([
    Part.Circle(App.Vector(4, 27.4, 0), App.Vector(0, 0, 1), 1.5),
    Part.Circle(App.Vector(4, 4.7, 0), App.Vector(0, 0, 1), 1.5),
], False)
sketch8.addConstraint([
    Sketcher.Constraint("Equal", 0, 1),
    Sketcher.Constraint("Vertical", 0, 3, 1, 3),
    Sketcher.Constraint("Diameter", 0, Q("3 mm")),
    Sketcher.Constraint("DistanceY", 1, 3, 0, 3, Q("22.7 mm")),
    Sketcher.Constraint("DistanceY", -1, 1, 0, 3, Q("27.4484 mm")),
    Sketcher.Constraint("DistanceX", -1, 1, 0, 3, Q("3.976926 mm")),
])
pocket5 = doc.addObject("PartDesign::Pocket", "Pocket004")
body.addObject(pocket5)
pocket5.Profile = sketch8
pocket5.Length = 16
pocket5.Reversed = True

sketch9 = doc.addObject("Sketcher::SketchObject", "Sketch008")
body.addObject(sketch9)
sketch9.AttachmentSupport = (doc.XY_Plane, [""])
sketch9.MapMode = "FlatFace"
sketch9.AttachmentOffset = App.Placement(App.Vector(0, 0, -38.4016), App.Rotation())
sketch9.addGeometry([
    Part.LineSegment(App.Vector(33, 11, 0), App.Vector(13, 24, 0)),
    Part.LineSegment(App.Vector(13, 24, 0), App.Vector(33, 24, 0)),
    Part.LineSegment(App.Vector(33, 24, 0), App.Vector(33, 11, 0)),
], False)
sketch9.addConstraint([
    Sketcher.Constraint("Coincident", 0, 2, 1, 1),
    Sketcher.Constraint("Coincident", 1, 2, 2, 1),
    Sketcher.Constraint("Coincident", 2, 2, 0, 1),
    Sketcher.Constraint("Horizontal", 1),
    Sketcher.Constraint("Vertical", 2),
    Sketcher.Constraint("DistanceX", 1, 1, 1, 2, Q("20 mm")),
    Sketcher.Constraint("DistanceX", -1, 1, 0, 2, Q("13 mm")),
    Sketcher.Constraint("DistanceY", -1, 1, 2, 2, Q("11.226201 mm")),
    Sketcher.Constraint("Distance", 0, Q("23.71879 mm")),
])
pocket6 = doc.addObject("PartDesign::Pocket", "Pocket005")
body.addObject(pocket6)
pocket6.Profile = sketch9
pocket6.Length = 117
pocket6.Reversed = True
doc.recompute()

fillet2 = doc.addObject("PartDesign::Fillet", "Fillet001")
body.addObject(fillet2)
fillet2.Base = (pocket6, edges_at(pocket6, [(33, 11.226, 16.098)]))
fillet2.Radius = 6

sketch10 = doc.addObject("Sketcher::SketchObject", "Sketch009")
body.addObject(sketch10)
sketch10.AttachmentSupport = (doc.YZ_Plane, [""])
sketch10.MapMode = "FlatFace"
sketch10.AttachmentOffset = App.Placement(App.Vector(0, 0, 20), App.Rotation())
sketch10.addGeometry(Part.Circle(App.Vector(6.3, -23.4, 0), App.Vector(0, 0, 1), 4), False)
sketch10.addConstraint([
    Sketcher.Constraint("Diameter", 0, Q("8 mm")),
    Sketcher.Constraint("DistanceY", 0, 3, -1, 1, Q("23.4016 mm")),
    Sketcher.Constraint("DistanceX", -1, 1, 0, 3, Q("6.338744 mm")),
])
pocket7 = doc.addObject("PartDesign::Pocket", "Pocket006")
body.addObject(pocket7)
pocket7.Profile = sketch10
pocket7.Length = 22
pocket7.Reversed = True

sketch11 = doc.addObject("Sketcher::SketchObject", "Sketch010")
body.addObject(sketch11)
sketch11.AttachmentSupport = (doc.YZ_Plane, [""])
sketch11.MapMode = "FlatFace"
sketch11.AttachmentOffset = App.Placement(App.Vector(0, 0, 20), App.Rotation())
sketch11.addGeometry(Part.Circle(App.Vector(6.3, 55.6, 0), App.Vector(0, 0, 1), 4), False)
sketch11.addConstraint([
    Sketcher.Constraint("Diameter", 0, Q("8 mm")),
    Sketcher.Constraint("DistanceY", -1, 1, 0, 3, Q("55.5984 mm")),
    Sketcher.Constraint("DistanceX", -1, 1, 0, 3, Q("6.338744 mm")),
])
pocket8 = doc.addObject("PartDesign::Pocket", "Pocket007")
body.addObject(pocket8)
pocket8.Profile = sketch11
pocket8.Length = 22
pocket8.Reversed = True

doc.recompute()
